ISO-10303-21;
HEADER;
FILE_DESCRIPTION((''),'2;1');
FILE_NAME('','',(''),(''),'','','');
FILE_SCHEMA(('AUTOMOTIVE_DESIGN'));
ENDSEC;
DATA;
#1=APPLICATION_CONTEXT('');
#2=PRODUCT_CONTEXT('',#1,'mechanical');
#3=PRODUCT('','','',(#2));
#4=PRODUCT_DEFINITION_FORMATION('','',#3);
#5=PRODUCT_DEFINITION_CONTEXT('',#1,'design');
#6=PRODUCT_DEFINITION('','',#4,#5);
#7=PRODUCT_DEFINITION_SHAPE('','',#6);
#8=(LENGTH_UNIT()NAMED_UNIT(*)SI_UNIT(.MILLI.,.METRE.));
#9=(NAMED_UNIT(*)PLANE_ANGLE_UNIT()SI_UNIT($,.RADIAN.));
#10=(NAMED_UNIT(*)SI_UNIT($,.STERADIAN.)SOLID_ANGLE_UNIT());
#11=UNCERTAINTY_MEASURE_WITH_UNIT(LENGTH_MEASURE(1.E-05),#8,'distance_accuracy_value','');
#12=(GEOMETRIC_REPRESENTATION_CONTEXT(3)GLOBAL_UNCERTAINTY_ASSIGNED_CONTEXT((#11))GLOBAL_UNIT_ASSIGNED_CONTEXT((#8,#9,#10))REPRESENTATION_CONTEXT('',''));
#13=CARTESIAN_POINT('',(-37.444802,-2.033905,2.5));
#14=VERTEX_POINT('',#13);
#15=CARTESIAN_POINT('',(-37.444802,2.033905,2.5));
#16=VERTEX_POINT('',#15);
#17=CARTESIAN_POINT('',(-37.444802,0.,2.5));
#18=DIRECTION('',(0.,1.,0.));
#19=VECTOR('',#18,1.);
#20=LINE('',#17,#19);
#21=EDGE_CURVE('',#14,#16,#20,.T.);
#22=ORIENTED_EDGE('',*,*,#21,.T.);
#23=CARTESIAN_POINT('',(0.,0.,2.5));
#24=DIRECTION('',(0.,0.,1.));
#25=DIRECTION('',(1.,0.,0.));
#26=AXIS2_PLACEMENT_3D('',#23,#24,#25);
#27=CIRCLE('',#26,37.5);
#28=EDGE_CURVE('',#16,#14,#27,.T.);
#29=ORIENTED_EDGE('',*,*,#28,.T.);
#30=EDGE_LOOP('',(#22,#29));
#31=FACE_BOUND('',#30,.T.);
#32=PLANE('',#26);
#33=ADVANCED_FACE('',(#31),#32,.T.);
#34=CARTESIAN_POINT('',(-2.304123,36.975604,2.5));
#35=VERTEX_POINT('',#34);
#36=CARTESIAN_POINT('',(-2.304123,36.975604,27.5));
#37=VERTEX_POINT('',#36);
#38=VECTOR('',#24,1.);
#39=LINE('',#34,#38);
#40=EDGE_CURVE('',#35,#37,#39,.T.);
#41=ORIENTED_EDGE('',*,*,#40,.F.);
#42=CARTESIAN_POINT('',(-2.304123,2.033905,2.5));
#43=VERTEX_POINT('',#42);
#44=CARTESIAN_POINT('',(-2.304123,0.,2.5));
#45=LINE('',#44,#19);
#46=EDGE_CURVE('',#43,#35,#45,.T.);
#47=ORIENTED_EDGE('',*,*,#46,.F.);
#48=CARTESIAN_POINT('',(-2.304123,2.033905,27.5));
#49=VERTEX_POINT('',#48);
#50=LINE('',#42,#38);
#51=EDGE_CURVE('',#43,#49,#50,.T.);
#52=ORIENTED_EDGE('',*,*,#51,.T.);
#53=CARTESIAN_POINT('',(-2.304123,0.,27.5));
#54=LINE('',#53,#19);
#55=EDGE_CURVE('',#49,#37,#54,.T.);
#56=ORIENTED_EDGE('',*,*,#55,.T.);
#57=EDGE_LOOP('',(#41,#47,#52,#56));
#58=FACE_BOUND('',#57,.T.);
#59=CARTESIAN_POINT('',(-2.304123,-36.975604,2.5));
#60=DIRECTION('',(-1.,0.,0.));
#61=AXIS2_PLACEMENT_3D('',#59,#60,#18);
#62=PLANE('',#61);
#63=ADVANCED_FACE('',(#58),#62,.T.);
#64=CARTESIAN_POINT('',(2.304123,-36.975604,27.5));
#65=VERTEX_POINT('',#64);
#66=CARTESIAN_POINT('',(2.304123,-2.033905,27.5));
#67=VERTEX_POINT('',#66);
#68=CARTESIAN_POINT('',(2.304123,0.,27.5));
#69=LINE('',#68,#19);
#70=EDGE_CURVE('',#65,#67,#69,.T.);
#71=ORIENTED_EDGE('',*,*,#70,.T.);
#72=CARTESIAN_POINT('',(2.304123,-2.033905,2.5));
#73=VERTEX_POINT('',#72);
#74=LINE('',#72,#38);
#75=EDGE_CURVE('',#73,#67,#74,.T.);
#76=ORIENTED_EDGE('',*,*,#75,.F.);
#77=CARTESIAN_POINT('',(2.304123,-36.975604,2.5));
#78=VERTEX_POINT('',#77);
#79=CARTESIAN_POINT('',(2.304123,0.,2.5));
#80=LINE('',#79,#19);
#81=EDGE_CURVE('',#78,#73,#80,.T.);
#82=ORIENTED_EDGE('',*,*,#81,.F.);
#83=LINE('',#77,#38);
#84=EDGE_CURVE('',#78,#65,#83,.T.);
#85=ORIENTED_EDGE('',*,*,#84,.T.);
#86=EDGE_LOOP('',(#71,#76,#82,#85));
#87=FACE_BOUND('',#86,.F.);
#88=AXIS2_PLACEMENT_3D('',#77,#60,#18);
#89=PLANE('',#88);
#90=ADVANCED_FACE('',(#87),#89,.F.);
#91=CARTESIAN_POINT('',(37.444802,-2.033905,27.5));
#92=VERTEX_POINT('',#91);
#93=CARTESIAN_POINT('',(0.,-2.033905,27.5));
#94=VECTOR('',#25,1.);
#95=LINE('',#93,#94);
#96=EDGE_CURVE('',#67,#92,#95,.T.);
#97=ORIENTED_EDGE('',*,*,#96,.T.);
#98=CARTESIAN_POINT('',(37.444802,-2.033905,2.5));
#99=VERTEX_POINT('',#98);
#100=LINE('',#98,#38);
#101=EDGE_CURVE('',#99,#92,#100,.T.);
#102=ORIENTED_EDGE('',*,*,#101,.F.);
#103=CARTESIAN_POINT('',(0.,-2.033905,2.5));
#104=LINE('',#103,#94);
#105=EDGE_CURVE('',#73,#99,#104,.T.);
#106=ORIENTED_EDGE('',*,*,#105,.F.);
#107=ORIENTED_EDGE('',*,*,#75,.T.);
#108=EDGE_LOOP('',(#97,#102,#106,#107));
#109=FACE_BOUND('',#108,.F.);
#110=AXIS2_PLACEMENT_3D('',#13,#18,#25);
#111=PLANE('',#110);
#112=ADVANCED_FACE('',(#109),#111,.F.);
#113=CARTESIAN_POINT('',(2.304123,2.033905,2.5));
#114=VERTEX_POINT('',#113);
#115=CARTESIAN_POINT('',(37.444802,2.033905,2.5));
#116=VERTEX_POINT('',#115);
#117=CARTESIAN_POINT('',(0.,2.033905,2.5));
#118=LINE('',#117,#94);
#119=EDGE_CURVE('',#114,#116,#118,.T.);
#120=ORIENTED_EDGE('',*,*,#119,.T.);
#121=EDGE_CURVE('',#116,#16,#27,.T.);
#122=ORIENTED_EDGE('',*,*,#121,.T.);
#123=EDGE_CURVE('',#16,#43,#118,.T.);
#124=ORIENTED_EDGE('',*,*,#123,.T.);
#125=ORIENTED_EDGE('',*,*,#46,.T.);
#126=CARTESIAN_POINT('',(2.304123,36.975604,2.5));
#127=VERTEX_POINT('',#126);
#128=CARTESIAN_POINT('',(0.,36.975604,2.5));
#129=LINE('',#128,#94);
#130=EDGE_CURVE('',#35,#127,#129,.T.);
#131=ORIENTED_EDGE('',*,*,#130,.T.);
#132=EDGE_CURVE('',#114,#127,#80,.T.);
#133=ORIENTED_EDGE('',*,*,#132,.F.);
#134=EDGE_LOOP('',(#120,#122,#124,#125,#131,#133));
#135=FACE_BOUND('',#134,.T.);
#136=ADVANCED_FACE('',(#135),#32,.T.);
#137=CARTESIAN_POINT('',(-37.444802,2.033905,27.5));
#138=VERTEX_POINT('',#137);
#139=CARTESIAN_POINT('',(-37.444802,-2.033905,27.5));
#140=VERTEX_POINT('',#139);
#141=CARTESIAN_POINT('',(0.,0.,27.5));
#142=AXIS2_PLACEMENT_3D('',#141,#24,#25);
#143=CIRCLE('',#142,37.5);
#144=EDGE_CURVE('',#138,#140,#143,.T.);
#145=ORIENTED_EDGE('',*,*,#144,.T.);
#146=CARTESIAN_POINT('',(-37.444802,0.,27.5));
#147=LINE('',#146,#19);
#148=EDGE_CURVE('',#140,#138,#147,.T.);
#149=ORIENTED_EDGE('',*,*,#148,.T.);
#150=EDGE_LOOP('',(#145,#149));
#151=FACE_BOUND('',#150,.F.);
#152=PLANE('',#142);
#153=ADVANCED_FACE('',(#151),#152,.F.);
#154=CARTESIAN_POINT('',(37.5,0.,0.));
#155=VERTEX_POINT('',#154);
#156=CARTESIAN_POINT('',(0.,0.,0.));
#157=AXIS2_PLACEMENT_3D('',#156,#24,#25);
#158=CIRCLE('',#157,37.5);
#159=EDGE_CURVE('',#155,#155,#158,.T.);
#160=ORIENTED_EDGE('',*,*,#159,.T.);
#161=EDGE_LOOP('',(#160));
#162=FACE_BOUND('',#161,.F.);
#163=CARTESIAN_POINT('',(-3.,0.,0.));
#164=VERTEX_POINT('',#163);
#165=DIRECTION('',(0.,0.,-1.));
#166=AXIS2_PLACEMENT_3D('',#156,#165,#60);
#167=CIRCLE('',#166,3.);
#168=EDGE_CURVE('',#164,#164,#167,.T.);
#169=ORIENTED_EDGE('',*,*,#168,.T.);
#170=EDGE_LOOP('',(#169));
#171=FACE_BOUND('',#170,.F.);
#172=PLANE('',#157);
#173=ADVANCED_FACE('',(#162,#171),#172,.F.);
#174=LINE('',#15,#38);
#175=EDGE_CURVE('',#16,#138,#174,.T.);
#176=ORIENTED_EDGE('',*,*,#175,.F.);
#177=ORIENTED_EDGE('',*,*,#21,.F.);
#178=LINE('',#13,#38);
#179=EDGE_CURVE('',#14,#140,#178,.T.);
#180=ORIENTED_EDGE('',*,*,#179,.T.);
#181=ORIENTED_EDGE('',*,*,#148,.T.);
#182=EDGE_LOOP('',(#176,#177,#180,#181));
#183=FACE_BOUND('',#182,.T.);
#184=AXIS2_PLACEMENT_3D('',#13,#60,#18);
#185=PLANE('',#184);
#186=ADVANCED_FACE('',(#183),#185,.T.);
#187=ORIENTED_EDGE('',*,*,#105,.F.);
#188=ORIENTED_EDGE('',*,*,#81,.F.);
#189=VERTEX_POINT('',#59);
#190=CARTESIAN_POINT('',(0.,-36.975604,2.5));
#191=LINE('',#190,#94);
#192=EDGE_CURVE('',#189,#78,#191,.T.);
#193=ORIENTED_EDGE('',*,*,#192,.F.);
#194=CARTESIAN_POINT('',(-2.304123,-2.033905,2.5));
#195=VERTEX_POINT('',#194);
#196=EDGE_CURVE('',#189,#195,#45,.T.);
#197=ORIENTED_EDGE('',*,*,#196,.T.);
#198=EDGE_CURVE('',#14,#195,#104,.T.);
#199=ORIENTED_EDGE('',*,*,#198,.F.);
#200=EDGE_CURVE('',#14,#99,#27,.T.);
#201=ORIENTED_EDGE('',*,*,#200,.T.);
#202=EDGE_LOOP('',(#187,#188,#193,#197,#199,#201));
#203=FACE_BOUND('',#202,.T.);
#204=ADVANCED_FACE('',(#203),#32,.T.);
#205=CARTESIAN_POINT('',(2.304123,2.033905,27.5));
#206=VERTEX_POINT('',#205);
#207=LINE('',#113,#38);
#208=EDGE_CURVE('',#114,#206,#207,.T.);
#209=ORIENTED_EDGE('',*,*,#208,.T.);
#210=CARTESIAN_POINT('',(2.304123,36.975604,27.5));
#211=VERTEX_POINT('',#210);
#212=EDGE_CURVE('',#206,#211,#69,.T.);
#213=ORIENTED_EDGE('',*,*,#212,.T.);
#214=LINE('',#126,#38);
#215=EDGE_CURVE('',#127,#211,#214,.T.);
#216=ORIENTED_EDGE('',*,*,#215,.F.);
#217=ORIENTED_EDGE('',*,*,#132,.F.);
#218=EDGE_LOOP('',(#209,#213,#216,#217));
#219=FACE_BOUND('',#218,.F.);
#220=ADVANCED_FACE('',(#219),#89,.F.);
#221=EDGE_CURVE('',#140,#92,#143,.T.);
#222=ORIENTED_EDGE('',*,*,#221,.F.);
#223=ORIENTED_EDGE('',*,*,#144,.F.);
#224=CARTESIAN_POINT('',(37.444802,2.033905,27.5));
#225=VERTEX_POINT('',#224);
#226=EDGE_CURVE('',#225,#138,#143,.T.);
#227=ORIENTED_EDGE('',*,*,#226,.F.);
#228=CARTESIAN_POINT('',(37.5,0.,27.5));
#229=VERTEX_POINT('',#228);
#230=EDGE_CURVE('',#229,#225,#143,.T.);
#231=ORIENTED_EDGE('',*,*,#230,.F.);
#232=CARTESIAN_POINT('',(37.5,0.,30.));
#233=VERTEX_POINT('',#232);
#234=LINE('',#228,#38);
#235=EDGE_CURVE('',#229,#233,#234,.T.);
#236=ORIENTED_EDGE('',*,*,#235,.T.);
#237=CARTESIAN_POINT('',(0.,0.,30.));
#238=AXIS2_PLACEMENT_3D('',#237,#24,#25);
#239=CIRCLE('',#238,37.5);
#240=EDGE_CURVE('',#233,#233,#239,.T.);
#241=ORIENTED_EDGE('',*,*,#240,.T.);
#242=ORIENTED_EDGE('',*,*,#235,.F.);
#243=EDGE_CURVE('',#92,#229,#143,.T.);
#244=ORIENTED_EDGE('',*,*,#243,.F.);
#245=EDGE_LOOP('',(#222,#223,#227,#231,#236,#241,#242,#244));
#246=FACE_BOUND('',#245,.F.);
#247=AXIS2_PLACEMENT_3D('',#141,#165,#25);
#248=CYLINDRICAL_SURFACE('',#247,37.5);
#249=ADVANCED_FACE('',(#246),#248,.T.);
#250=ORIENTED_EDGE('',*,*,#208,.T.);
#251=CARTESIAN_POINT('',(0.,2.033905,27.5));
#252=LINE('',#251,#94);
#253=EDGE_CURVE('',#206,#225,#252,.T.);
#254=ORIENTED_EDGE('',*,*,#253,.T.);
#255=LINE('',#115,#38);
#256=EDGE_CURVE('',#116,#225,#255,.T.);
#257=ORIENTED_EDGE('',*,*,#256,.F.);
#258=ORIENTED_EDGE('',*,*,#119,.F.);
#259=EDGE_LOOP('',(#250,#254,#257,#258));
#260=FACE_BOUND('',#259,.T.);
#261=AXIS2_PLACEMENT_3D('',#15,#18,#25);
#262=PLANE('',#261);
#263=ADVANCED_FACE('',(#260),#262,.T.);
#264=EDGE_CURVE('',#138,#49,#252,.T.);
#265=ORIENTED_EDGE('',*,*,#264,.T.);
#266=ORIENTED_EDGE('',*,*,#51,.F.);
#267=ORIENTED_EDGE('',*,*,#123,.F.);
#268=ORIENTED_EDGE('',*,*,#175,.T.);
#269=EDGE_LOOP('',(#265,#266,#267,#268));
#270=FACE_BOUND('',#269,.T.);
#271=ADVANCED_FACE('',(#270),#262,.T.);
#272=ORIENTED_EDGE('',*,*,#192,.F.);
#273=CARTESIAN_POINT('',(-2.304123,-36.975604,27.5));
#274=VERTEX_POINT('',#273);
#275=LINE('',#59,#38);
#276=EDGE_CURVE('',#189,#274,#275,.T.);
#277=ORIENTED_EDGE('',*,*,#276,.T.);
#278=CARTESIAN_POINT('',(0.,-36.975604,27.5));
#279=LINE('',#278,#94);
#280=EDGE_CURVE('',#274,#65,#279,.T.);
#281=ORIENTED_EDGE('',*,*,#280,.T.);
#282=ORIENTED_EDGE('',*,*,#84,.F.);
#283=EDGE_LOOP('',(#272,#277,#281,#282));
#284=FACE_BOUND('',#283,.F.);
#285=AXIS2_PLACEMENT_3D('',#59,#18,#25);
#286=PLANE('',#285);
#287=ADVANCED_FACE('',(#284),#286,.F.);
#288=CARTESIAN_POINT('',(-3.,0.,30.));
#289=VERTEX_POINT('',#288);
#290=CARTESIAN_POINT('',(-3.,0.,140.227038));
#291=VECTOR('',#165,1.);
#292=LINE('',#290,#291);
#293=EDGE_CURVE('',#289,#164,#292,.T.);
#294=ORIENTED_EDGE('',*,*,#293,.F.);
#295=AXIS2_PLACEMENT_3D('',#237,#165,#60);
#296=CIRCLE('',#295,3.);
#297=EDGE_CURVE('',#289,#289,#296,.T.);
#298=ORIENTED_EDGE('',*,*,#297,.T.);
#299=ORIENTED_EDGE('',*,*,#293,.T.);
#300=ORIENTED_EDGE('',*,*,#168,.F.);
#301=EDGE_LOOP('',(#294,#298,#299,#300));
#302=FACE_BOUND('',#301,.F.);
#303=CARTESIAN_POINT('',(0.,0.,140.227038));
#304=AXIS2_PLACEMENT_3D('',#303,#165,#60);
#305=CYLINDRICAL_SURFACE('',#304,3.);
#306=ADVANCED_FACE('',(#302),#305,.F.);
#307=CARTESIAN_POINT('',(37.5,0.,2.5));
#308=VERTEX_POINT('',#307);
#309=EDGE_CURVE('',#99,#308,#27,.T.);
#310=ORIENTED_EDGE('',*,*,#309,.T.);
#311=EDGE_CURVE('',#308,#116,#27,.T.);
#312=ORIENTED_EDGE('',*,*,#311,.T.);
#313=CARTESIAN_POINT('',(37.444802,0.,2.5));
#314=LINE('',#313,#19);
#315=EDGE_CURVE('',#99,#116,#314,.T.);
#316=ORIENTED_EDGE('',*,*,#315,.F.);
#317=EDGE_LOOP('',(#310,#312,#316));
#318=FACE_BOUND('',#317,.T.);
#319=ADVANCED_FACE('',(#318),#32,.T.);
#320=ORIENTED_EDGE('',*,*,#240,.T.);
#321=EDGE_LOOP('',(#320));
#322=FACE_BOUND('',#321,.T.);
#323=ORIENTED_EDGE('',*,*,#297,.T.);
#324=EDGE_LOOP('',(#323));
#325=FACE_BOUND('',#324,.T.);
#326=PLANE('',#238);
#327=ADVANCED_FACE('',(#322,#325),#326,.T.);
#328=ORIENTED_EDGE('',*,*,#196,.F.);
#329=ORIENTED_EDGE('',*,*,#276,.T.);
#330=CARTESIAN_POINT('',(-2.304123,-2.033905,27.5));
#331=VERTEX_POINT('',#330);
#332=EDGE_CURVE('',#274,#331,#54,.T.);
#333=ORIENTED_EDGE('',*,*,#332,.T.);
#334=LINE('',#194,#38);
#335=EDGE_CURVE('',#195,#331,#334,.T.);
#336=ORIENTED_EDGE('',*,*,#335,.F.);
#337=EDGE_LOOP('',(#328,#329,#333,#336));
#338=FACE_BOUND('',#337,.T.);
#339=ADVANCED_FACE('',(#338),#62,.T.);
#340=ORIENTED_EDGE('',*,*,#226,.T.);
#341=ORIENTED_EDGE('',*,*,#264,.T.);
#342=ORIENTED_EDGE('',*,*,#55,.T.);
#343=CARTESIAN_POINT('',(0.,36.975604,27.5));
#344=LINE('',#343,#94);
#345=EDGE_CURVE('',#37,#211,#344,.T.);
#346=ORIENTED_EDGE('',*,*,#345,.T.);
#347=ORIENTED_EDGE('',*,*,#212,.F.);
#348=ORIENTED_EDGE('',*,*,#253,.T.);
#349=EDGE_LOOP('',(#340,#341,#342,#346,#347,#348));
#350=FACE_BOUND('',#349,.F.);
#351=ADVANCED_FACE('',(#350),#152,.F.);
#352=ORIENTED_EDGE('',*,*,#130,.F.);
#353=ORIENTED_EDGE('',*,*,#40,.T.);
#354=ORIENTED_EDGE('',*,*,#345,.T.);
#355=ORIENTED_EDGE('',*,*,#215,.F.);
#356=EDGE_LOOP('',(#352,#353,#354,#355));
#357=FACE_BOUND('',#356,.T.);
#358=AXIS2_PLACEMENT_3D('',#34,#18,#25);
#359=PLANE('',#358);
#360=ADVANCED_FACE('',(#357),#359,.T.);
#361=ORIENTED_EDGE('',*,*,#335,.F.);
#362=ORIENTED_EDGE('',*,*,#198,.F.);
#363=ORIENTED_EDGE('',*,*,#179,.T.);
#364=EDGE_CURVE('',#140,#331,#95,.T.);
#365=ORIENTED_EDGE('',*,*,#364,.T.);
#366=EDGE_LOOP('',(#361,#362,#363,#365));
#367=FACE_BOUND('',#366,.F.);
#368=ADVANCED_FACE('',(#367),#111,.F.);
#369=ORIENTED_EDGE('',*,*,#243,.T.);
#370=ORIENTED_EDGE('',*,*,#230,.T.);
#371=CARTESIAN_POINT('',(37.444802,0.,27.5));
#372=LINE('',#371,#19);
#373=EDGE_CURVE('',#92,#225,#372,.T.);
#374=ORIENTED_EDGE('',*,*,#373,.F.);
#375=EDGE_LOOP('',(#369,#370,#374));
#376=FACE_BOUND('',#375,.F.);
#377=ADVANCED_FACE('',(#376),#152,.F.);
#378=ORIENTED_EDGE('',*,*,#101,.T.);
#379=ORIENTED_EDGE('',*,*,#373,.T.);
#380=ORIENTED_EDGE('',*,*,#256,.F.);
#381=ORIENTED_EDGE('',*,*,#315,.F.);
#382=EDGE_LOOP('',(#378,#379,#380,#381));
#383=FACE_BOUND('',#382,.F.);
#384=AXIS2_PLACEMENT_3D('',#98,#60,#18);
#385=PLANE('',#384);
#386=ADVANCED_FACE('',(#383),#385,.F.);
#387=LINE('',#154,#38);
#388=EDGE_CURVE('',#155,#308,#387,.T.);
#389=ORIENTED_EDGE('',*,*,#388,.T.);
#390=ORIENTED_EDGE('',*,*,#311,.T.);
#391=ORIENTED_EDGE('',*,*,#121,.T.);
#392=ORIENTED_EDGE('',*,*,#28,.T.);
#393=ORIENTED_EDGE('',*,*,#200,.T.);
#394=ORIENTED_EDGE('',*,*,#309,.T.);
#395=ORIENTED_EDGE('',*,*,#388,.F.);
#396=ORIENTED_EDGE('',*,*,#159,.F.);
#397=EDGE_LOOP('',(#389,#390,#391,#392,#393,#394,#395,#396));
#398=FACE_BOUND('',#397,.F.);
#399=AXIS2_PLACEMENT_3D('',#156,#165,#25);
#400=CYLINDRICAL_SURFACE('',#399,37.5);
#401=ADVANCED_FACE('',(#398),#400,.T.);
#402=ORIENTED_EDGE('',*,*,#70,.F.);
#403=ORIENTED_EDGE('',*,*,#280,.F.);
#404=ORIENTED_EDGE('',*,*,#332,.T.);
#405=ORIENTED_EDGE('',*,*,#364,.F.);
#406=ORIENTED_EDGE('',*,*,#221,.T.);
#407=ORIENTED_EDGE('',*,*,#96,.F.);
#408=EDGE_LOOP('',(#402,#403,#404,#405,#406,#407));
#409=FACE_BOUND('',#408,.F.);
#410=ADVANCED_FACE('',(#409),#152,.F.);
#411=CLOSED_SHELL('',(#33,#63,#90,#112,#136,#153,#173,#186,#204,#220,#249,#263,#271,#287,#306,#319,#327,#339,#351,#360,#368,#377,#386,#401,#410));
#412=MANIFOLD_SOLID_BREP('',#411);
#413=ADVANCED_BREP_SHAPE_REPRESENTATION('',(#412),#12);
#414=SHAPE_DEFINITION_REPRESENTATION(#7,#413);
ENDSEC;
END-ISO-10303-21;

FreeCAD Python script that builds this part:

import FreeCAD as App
import Part
import Sketcher

V = App.Vector
Q = App.Units.Quantity


def add_polygon(sketch, points):
    """Adds a closed chain of lines whose ends are joined by coincident constraints."""
    first, n = sketch.GeometryCount, len(points)
    for a, b in zip(points, points[1:] + points[:1]):
        sketch.addGeometry(Part.LineSegment(App.Vector(*a, 0), App.Vector(*b, 0)), False)
    for i in range(n):
        sketch.addConstraint(Sketcher.Constraint("Coincident", first + i, 2, first + (i + 1) % n, 1))

doc = App.newDocument("Part")
params = doc.addObject("Spreadsheet::Sheet", "Params")
for row, (alias, value) in enumerate([
    ("sketch1_diameter", "75 mm"),
    ("pad1_length", "2.5 mm"),
    ("pad2_length", "25 mm"),
    ("pad3_length", "25 mm"),
    ("sketch4_diameter", "75 mm"),
    ("pad4_length", "2.5 mm"),
    ("sketch5_diameter", "6 mm"),
    ("hole_diameter", "6 mm"),
], start=1):
    params.set(f"A{row}", alias)
    params.set(f"B{row}", "=" + value)
    params.setAlias(f"B{row}", alias)

body = doc.addObject("PartDesign::Body", "Body")

# Sketch on XY plane
sketch1 = body.newObject("Sketcher::SketchObject", "Sketch")
sketch1.AttachmentSupport = (doc.getObject("XY_Plane"), [""])
sketch1.MapMode = "FlatFace"
sketch1.addGeometry(Part.Circle(V(0, 0, 0), V(0, 0, 1), 38), False)
sketch1.addConstraint([
    Sketcher.Constraint("Coincident", 0, 3, -1, 1),
    Sketcher.Constraint("Diameter", 0, Q("75 mm")),
])
sketch1.setExpression("Constraints[1]", "Params.sketch1_diameter")
pad1 = body.newObject("PartDesign::Pad", "Pad")
pad1.Profile = sketch1
pad1.setExpression("Length", "Params.pad1_length")

# Sketch on XY plane
sketch2 = body.newObject("Sketcher::SketchObject", "Sketch001")
sketch2.AttachmentSupport = (doc.getObject("XY_Plane"), [""])
sketch2.MapMode = "FlatFace"
sketch2.AttachmentOffset = App.Placement(V(0, 0, 2.5), App.Rotation())
add_polygon(sketch2, [(-37.4, 2), (-37.4, -2), (37.4, -2), (37.4, 2)])  # lines 0-3
sketch2.addConstraint([
    Sketcher.Constraint("Vertical", 0),
    Sketcher.Constraint("Horizontal", 1),
    Sketcher.Constraint("Vertical", 2),
    Sketcher.Constraint("Horizontal", 3),
    Sketcher.Constraint("Symmetric", 0, 2, 2, 2, -1, 1),
    Sketcher.Constraint("DistanceY", 0, 2, 0, 1, Q("4.06781 mm")),
    Sketcher.Constraint("DistanceX", 1, 1, 1, 2, Q("74.889605 mm")),
])
pad2 = body.newObject("PartDesign::Pad", "Pad001")
pad2.Profile = sketch2
pad2.setExpression("Length", "Params.pad2_length")

# Sketch on XY plane
sketch3 = body.newObject("Sketcher::SketchObject", "Sketch002")
sketch3.AttachmentSupport = (doc.getObject("XY_Plane"), [""])
sketch3.MapMode = "FlatFace"
sketch3.AttachmentOffset = App.Placement(V(0, 0, 2.5), App.Rotation())
add_polygon(sketch3, [(-2.3, 37), (-2.3, -37), (2.3, -37), (2.3, 37)])  # lines 0-3
sketch3.addConstraint([
    Sketcher.Constraint("Vertical", 0),
    Sketcher.Constraint("Horizontal", 1),
    Sketcher.Constraint("Vertical", 2),
    Sketcher.Constraint("Horizontal", 3),
    Sketcher.Constraint("Symmetric", 0, 2, 2, 2, -1, 1),
    Sketcher.Constraint("DistanceX", 1, 1, 1, 2, Q("4.608247 mm")),
    Sketcher.Constraint("DistanceY", 0, 2, 0, 1, Q("73.951207 mm")),
])
pad3 = body.newObject("PartDesign::Pad", "Pad002")
pad3.Profile = sketch3
pad3.setExpression("Length", "Params.pad3_length")

# Sketch on XY plane
sketch4 = body.newObject("Sketcher::SketchObject", "Sketch003")
sketch4.AttachmentSupport = (doc.getObject("XY_Plane"), [""])
sketch4.MapMode = "FlatFace"
sketch4.AttachmentOffset = App.Placement(V(0, 0, 27.5), App.Rotation())
sketch4.addGeometry(Part.Circle(V(0, 0, 0), V(0, 0, 1), 38), False)
sketch4.addConstraint([
    Sketcher.Constraint("Coincident", 0, 3, -1, 1),
    Sketcher.Constraint("Diameter", 0, Q("75 mm")),
])
sketch4.setExpression("Constraints[1]", "Params.sketch4_diameter")
pad4 = body.newObject("PartDesign::Pad", "Pad003")
pad4.Profile = sketch4
pad4.setExpression("Length", "Params.pad4_length")

# Sketch on XY plane
sketch5 = body.newObject("Sketcher::SketchObject", "Sketch004")
sketch5.AttachmentSupport = (doc.getObject("XY_Plane"), [""])
sketch5.MapMode = "FlatFace"
sketch5.AttachmentOffset = App.Placement(V(0, 0, 30), App.Rotation())
sketch5.addGeometry(Part.Circle(V(0, 0, 0), V(0, 0, 1), 3), False)
sketch5.addConstraint([
    Sketcher.Constraint("Coincident", 0, 3, -1, 1),
    Sketcher.Constraint("Diameter", 0, Q("6 mm")),
])
sketch5.setExpression("Constraints[1]", "Params.sketch5_diameter")
doc.recompute()
hole = body.newObject("PartDesign::Hole", "Hole")
hole.Profile = sketch5
hole.ThreadType = "None"
hole.setExpression("Diameter", "Params.hole_diameter")
hole.DepthType = "ThroughAll"

doc.recompute()
